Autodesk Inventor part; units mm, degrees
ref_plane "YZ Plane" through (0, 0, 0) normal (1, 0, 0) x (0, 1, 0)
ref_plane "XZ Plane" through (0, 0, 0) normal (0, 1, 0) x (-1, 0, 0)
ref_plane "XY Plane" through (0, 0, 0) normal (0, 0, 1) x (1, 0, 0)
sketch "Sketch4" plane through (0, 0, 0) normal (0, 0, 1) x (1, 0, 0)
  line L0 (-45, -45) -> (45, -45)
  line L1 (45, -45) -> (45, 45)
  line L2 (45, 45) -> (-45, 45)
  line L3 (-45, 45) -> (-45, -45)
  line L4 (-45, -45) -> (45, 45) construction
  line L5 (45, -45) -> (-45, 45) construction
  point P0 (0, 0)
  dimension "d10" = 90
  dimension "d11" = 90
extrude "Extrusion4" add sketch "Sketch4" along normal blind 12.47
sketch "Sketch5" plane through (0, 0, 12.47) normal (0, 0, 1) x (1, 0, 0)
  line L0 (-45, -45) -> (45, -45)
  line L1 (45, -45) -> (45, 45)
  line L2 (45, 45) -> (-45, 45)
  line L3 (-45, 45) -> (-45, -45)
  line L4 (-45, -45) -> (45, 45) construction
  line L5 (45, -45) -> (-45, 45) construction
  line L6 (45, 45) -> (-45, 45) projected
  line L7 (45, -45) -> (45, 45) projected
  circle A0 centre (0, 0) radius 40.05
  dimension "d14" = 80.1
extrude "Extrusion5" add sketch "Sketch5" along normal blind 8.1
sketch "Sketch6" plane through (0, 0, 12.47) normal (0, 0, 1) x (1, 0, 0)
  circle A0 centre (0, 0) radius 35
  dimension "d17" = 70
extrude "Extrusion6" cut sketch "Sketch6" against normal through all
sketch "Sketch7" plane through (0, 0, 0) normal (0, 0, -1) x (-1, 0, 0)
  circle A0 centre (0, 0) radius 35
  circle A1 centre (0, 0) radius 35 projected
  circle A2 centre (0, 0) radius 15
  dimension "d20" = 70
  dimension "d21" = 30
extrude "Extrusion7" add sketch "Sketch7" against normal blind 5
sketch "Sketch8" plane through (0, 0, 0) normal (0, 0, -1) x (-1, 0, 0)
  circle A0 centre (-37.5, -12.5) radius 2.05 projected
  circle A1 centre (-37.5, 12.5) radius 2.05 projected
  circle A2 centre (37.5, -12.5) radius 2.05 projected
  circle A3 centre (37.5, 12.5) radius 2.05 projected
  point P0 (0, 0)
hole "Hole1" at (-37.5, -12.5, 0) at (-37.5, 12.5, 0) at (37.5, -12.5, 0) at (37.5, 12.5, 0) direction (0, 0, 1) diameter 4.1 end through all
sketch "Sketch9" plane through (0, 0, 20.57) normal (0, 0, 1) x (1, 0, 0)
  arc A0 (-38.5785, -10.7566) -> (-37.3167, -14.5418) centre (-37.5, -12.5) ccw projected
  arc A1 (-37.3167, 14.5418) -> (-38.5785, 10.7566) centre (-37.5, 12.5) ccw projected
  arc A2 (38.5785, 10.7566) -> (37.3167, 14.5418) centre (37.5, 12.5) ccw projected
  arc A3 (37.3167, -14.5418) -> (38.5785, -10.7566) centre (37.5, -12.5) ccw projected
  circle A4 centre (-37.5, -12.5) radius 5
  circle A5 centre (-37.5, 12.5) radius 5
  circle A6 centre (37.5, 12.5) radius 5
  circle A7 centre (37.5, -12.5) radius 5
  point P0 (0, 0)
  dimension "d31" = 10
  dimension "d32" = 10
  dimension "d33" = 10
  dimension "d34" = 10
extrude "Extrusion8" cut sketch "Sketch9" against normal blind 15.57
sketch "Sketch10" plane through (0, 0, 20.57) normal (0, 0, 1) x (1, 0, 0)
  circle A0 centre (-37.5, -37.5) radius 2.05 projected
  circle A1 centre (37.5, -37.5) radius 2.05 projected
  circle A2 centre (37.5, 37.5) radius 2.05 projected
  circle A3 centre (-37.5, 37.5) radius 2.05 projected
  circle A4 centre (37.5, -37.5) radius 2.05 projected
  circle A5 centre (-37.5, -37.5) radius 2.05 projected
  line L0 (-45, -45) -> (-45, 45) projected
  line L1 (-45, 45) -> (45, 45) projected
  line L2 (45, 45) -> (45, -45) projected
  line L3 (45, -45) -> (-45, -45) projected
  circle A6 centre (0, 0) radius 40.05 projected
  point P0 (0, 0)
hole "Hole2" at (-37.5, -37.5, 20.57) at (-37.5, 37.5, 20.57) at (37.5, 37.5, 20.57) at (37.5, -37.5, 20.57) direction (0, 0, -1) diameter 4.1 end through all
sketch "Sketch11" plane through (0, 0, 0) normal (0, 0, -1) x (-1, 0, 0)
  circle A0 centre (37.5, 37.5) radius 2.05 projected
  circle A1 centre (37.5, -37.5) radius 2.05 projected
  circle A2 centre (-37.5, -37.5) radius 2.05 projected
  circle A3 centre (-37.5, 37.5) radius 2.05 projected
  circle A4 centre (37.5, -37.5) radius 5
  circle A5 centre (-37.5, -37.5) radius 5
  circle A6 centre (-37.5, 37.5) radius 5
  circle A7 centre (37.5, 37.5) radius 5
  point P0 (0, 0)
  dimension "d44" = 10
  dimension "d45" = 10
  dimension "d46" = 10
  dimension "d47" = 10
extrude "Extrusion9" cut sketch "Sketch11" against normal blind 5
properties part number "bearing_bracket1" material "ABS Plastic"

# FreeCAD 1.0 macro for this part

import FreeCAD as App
import Part
import Sketcher

V = App.Vector
Q = App.Units.Quantity


def add_polygon(sketch, points):
    """Adds a closed chain of lines whose ends are joined by coincident constraints."""
    first, n = sketch.GeometryCount, len(points)
    for a, b in zip(points, points[1:] + points[:1]):
        sketch.addGeometry(Part.LineSegment(App.Vector(*a, 0), App.Vector(*b, 0)), False)
    for i in range(n):
        sketch.addConstraint(Sketcher.Constraint("Coincident", first + i, 2, first + (i + 1) % n, 1))

doc = App.newDocument("Part")
body = doc.addObject("PartDesign::Body", "Body")

sketch1 = body.newObject("Sketcher::SketchObject", "Sketch")
sketch1.AttachmentSupport = (doc.getObject("XY_Plane"), [""])
sketch1.MapMode = "FlatFace"
add_polygon(sketch1, [(-45, 45), (-45, -45), (45, -45), (45, 45)])
sketch1.addConstraint(Sketcher.Constraint("Vertical", 0))
sketch1.addConstraint(Sketcher.Constraint("Horizontal", 1))
sketch1.addConstraint(Sketcher.Constraint("Vertical", 2))
sketch1.addConstraint(Sketcher.Constraint("Horizontal", 3))
sketch1.addConstraint(Sketcher.Constraint("Symmetric", 0, 2, 2, 2, -1, 1))
sketch1.addConstraint(Sketcher.Constraint("Equal", 3, 0))
sketch1.addConstraint(Sketcher.Constraint("DistanceX", 1, 1, 1, 2, Q("90 mm")))
pad1 = body.newObject("PartDesign::Pad", "Pad")
pad1.Profile = sketch1
pad1.Length = 12.47

sketch2 = body.newObject("Sketcher::SketchObject", "Sketch001")
sketch2.AttachmentSupport = (doc.getObject("XY_Plane"), [""])
sketch2.MapMode = "FlatFace"
sketch2.AttachmentOffset = App.Placement(V(0, 0, 12.47), App.Rotation())
add_polygon(sketch2, [(-45, 45), (-45, -45), (45, -45), (45, 45)])
sketch2.addGeometry(Part.Circle(V(0, 0, 0), V(0, 0, 1), 40), False)
sketch2.addConstraint(Sketcher.Constraint("Vertical", 0))
sketch2.addConstraint(Sketcher.Constraint("Horizontal", 1))
sketch2.addConstraint(Sketcher.Constraint("Vertical", 2))
sketch2.addConstraint(Sketcher.Constraint("Horizontal", 3))
sketch2.addConstraint(Sketcher.Constraint("Coincident", 4, 3, -1, 1))
sketch2.addConstraint(Sketcher.Constraint("Symmetric", 0, 2, 2, 2, -1, 1))
sketch2.addConstraint(Sketcher.Constraint("Equal", 3, 0))
sketch2.addConstraint(Sketcher.Constraint("Diameter", 4, Q("80.1 mm")))
sketch2.addConstraint(Sketcher.Constraint("DistanceX", 1, 1, 1, 2, Q("90 mm")))
pad2 = body.newObject("PartDesign::Pad", "Pad001")
pad2.Profile = sketch2
pad2.Length = 8.1

sketch3 = body.newObject("Sketcher::SketchObject", "Sketch002")
sketch3.AttachmentSupport = (doc.getObject("XY_Plane"), [""])
sketch3.MapMode = "FlatFace"
sketch3.AttachmentOffset = App.Placement(V(0, 0, 12.47), App.Rotation())
sketch3.addGeometry(Part.Circle(V(0, 0, 0), V(0, 0, 1), 35), False)
sketch3.addConstraint(Sketcher.Constraint("Coincident", 0, 3, -1, 1))
sketch3.addConstraint(Sketcher.Constraint("Diameter", 0, Q("70 mm")))
pocket1 = body.newObject("PartDesign::Pocket", "Pocket")
pocket1.Profile = sketch3
pocket1.Type = "ThroughAll"

sketch4 = body.newObject("Sketcher::SketchObject", "Sketch003")
sketch4.AttachmentSupport = (doc.getObject("XY_Plane"), [""])
sketch4.MapMode = "FlatFace"
sketch4.addGeometry(Part.Circle(V(0, 0, 0), V(0, 0, 1), 35), False)
sketch4.addGeometry(Part.Circle(V(0, 0, 0), V(0, 0, 1), 15), False)
sketch4.addConstraint(Sketcher.Constraint("Coincident", 0, 3, -1, 1))
sketch4.addConstraint(Sketcher.Constraint("Coincident", 1, 3, -1, 1))
sketch4.addConstraint(Sketcher.Constraint("Diameter", 0, Q("70 mm")))
sketch4.addConstraint(Sketcher.Constraint("Diameter", 1, Q("30 mm")))
pad3 = body.newObject("PartDesign::Pad", "Pad002")
pad3.Profile = sketch4
pad3.Length = 5

sketch5 = body.newObject("Sketcher::SketchObject", "Sketch004")
sketch5.AttachmentSupport = (doc.getObject("XY_Plane"), [""])
sketch5.MapMode = "FlatFace"
sketch5.addGeometry(Part.Circle(V(-37.5, -12.5, 0), V(0, 0, 1), 2), False)
sketch5.addGeometry(Part.Circle(V(-37.5, 12.5, 0), V(0, 0, 1), 2), False)
sketch5.addGeometry(Part.Circle(V(37.5, -12.5, 0), V(0, 0, 1), 2), False)
sketch5.addGeometry(Part.Circle(V(37.5, 12.5, 0), V(0, 0, 1), 2), False)
sketch5.addConstraint(Sketcher.Constraint("Equal", 0, 1))
sketch5.addConstraint(Sketcher.Constraint("Equal", 1, 2))
sketch5.addConstraint(Sketcher.Constraint("Equal", 2, 3))
sketch5.addConstraint(Sketcher.Constraint("Symmetric", 1, 3, 2, 3, -1, 1))
sketch5.addConstraint(Sketcher.Constraint("Symmetric", 0, 3, 3, 3, -1, 1))
sketch5.addConstraint(Sketcher.Constraint("Symmetric", 0, 3, 2, 3, -2))
sketch5.addConstraint(Sketcher.Constraint("Diameter", 0, Q("4.1 mm")))
sketch5.addConstraint(Sketcher.Constraint("DistanceY", 0, 3, 1, 3, Q("25 mm")))
sketch5.addConstraint(Sketcher.Constraint("DistanceX", 0, 3, 2, 3, Q("75 mm")))
doc.recompute()
hole = body.newObject("PartDesign::Hole", "Hole")
hole.Profile = sketch5
hole.ThreadType = "None"
hole.Diameter = 4.1
hole.DepthType = "ThroughAll"
hole.Reversed = True

sketch6 = body.newObject("Sketcher::SketchObject", "Sketch005")
sketch6.AttachmentSupport = (doc.getObject("XY_Plane"), [""])
sketch6.MapMode = "FlatFace"
sketch6.AttachmentOffset = App.Placement(V(0, 0, 20.57), App.Rotation())
sketch6.addGeometry(Part.Circle(V(-38, -12, 0), V(0, 0, 1), 5), False)
sketch6.addGeometry(Part.Circle(V(-38, 12, 0), V(0, 0, 1), 5), False)
sketch6.addGeometry(Part.Circle(V(38, 12, 0), V(0, 0, 1), 5), False)
sketch6.addGeometry(Part.Circle(V(38, -12, 0), V(0, 0, 1), 5), False)
sketch6.addConstraint(Sketcher.Constraint("Equal", 0, 1))
sketch6.addConstraint(Sketcher.Constraint("Equal", 1, 2))
sketch6.addConstraint(Sketcher.Constraint("Equal", 2, 3))
sketch6.addConstraint(Sketcher.Constraint("Symmetric", 0, 3, 2, 3, -1, 1))
sketch6.addConstraint(Sketcher.Constraint("Symmetric", 1, 3, 3, 3, -1, 1))
sketch6.addConstraint(Sketcher.Constraint("Symmetric", 1, 3, 2, 3, -2))
sketch6.addConstraint(Sketcher.Constraint("Diameter", 0, Q("10 mm")))
sketch6.addConstraint(Sketcher.Constraint("DistanceY", 0, 3, 1, 3, Q("25 mm")))
sketch6.addConstraint(Sketcher.Constraint("DistanceX", 1, 3, 2, 3, Q("75 mm")))
pocket2 = body.newObject("PartDesign::Pocket", "Pocket001")
pocket2.Profile = sketch6
pocket2.Length = 15.57

sketch7 = body.newObject("Sketcher::SketchObject", "Sketch006")
sketch7.AttachmentSupport = (doc.getObject("XY_Plane"), [""])
sketch7.MapMode = "FlatFace"
sketch7.AttachmentOffset = App.Placement(V(0, 0, 20.57), App.Rotation())
sketch7.addGeometry(Part.Circle(V(-37.5, -37.5, 0), V(0, 0, 1), 2), False)
sketch7.addGeometry(Part.Circle(V(-37.5, 37.5, 0), V(0, 0, 1), 2), False)
sketch7.addGeometry(Part.Circle(V(37.5, 37.5, 0), V(0, 0, 1), 2), False)
sketch7.addGeometry(Part.Circle(V(37.5, -37.5, 0), V(0, 0, 1), 2), False)
sketch7.addConstraint(Sketcher.Constraint("Equal", 0, 1))
sketch7.addConstraint(Sketcher.Constraint("Equal", 1, 2))
sketch7.addConstraint(Sketcher.Constraint("Equal", 2, 3))
sketch7.addConstraint(Sketcher.Constraint("Symmetric", 0, 3, 2, 3, -1, 1))
sketch7.addConstraint(Sketcher.Constraint("Symmetric", 1, 3, 3, 3, -1, 1))
sketch7.addConstraint(Sketcher.Constraint("Symmetric", 1, 3, 2, 3, -2))
sketch7.addConstraint(Sketcher.Constraint("Diameter", 0, Q("4.1 mm")))
sketch7.addConstraint(Sketcher.Constraint("DistanceY", 0, 3, 1, 3, Q("75 mm")))
sketch7.addConstraint(Sketcher.Constraint("DistanceX", 1, 3, 2, 3, Q("75 mm")))
doc.recompute()
hole2 = body.newObject("PartDesign::Hole", "Hole001")
hole2.Profile = sketch7
hole2.ThreadType = "None"
hole2.Diameter = 4.1
hole2.DepthType = "ThroughAll"

sketch8 = body.newObject("Sketcher::SketchObject", "Sketch007")
sketch8.AttachmentSupport = (doc.getObject("XY_Plane"), [""])
sketch8.MapMode = "FlatFace"
sketch8.addGeometry(Part.Circle(V(-37.5, -37.5, 0), V(0, 0, 1), 5), False)
sketch8.addGeometry(Part.Circle(V(-37.5, -37.5, 0), V(0, 0, 1), 2), False)
sketch8.addGeometry(Part.Circle(V(37.5, -37.5, 0), V(0, 0, 1), 5), False)
sketch8.addGeometry(Part.Circle(V(37.5, -37.5, 0), V(0, 0, 1), 2), False)
sketch8.addGeometry(Part.Circle(V(37.5, 37.5, 0), V(0, 0, 1), 5), False)
sketch8.addGeometry(Part.Circle(V(37.5, 37.5, 0), V(0, 0, 1), 2), False)
sketch8.addGeometry(Part.Circle(V(-37.5, 37.5, 0), V(0, 0, 1), 5), False)
sketch8.addGeometry(Part.Circle(V(-37.5, 37.5, 0), V(0, 0, 1), 2), False)
sketch8.addConstraint(Sketcher.Constraint("Coincident", 1, 3, 0, 3))
sketch8.addConstraint(Sketcher.Constraint("Coincident", 3, 3, 2, 3))
sketch8.addConstraint(Sketcher.Constraint("Coincident", 5, 3, 4, 3))
sketch8.addConstraint(Sketcher.Constraint("Coincident", 7, 3, 6, 3))
sketch8.addConstraint(Sketcher.Constraint("Equal", 0, 2))
sketch8.addConstraint(Sketcher.Constraint("Equal", 1, 3))
sketch8.addConstraint(Sketcher.Constraint("Equal", 2, 4))
sketch8.addConstraint(Sketcher.Constraint("Equal", 3, 5))
sketch8.addConstraint(Sketcher.Constraint("Equal", 4, 6))
sketch8.addConstraint(Sketcher.Constraint("Equal", 5, 7))
sketch8.addConstraint(Sketcher.Constraint("Symmetric", 0, 3, 4, 3, -1, 1))
sketch8.addConstraint(Sketcher.Constraint("Symmetric", 2, 3, 6, 3, -1, 1))
sketch8.addConstraint(Sketcher.Constraint("Symmetric", 0, 3, 2, 3, -2))
sketch8.addConstraint(Sketcher.Constraint("Diameter", 0, Q("10 mm")))
sketch8.addConstraint(Sketcher.Constraint("Diameter", 1, Q("4.1 mm")))
sketch8.addConstraint(Sketcher.Constraint("DistanceX", 0, 3, 2, 3, Q("75 mm")))
sketch8.addConstraint(Sketcher.Constraint("DistanceY", 2, 3, 4, 3, Q("75 mm")))
pocket3 = body.newObject("PartDesign::Pocket", "Pocket002")
pocket3.Profile = sketch8
pocket3.Length = 5
pocket3.Reversed = True

doc.recompute()
